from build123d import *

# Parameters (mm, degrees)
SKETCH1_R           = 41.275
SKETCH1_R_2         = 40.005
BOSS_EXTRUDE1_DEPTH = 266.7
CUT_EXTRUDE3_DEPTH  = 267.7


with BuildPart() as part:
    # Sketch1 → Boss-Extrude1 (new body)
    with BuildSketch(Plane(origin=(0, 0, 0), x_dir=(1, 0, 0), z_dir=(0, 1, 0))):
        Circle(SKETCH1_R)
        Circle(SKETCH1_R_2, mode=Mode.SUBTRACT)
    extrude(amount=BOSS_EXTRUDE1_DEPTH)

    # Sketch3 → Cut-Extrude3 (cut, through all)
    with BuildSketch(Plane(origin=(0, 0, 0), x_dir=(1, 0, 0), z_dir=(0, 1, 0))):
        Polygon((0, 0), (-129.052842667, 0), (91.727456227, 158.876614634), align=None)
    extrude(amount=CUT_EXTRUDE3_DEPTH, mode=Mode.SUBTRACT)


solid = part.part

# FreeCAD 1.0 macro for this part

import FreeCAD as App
import Part
import Sketcher
from FreeCAD import Vector
Q = App.Units.Quantity


def add_polygon(sketch, points):
    """Adds a closed chain of lines whose ends are joined by coincident constraints."""
    first, n = sketch.GeometryCount, len(points)
    for a, b in zip(points, points[1:] + points[:1]):
        sketch.addGeometry(Part.LineSegment(App.Vector(*a, 0), App.Vector(*b, 0)), False)
    for i in range(n):
        sketch.addConstraint(Sketcher.Constraint("Coincident", first + i, 2, first + (i + 1) % n, 1))

doc = App.newDocument("Part")
body = doc.addObject("PartDesign::Body", "Body")

# Sketch on XZ plane
sketch1 = doc.addObject("Sketcher::SketchObject", "Sketch")
body.addObject(sketch1)
sketch1.AttachmentSupport = (doc.XZ_Plane, [""])
sketch1.MapMode = "FlatFace"
sketch1.addGeometry(Part.Circle(Vector(0, 0, 0), Vector(0, 0, 1), 41), False)
sketch1.addGeometry(Part.Circle(Vector(0, 0, 0), Vector(0, 0, 1), 40), False)
sketch1.addConstraint(Sketcher.Constraint("Coincident", 0, 3, -1, 1))
sketch1.addConstraint(Sketcher.Constraint("Coincident", 1, 3, -1, 1))
sketch1.addConstraint(Sketcher.Constraint("Diameter", 0, Q("3.25 in")))
sketch1.addConstraint(Sketcher.Constraint("Diameter", 1, Q("3.15 in")))
pad1 = doc.addObject("PartDesign::Pad", "Pad")
body.addObject(pad1)
pad1.Profile = sketch1
pad1.Length = Q("10.5 in")
pad1.Reversed = True

# Sketch on XZ plane
sketch2 = doc.addObject("Sketcher::SketchObject", "Sketch001")
body.addObject(sketch2)
sketch2.AttachmentSupport = (doc.XZ_Plane, [""])
sketch2.MapMode = "FlatFace"
add_polygon(sketch2, [(-129, 0), (0, 0), (92, -159)])  # lines 0-2
sketch2.addConstraint(Sketcher.Constraint("Horizontal", 0))
sketch2.addConstraint(Sketcher.Constraint("Coincident", 0, 2, -1, 1))
sketch2.addConstraint(Sketcher.Constraint("Angle", 1, Q("-60 deg")))
sketch2.addConstraint(Sketcher.Constraint("DistanceX", 2, 2, 1, 2, Q("220.780299 mm")))
sketch2.addConstraint(Sketcher.Constraint("Distance", 2, Q("272.00316 mm")))
pocket1 = doc.addObject("PartDesign::Pocket", "Pocket")
body.addObject(pocket1)
pocket1.Profile = sketch2
pocket1.Type = "ThroughAll"

doc.recompute()
